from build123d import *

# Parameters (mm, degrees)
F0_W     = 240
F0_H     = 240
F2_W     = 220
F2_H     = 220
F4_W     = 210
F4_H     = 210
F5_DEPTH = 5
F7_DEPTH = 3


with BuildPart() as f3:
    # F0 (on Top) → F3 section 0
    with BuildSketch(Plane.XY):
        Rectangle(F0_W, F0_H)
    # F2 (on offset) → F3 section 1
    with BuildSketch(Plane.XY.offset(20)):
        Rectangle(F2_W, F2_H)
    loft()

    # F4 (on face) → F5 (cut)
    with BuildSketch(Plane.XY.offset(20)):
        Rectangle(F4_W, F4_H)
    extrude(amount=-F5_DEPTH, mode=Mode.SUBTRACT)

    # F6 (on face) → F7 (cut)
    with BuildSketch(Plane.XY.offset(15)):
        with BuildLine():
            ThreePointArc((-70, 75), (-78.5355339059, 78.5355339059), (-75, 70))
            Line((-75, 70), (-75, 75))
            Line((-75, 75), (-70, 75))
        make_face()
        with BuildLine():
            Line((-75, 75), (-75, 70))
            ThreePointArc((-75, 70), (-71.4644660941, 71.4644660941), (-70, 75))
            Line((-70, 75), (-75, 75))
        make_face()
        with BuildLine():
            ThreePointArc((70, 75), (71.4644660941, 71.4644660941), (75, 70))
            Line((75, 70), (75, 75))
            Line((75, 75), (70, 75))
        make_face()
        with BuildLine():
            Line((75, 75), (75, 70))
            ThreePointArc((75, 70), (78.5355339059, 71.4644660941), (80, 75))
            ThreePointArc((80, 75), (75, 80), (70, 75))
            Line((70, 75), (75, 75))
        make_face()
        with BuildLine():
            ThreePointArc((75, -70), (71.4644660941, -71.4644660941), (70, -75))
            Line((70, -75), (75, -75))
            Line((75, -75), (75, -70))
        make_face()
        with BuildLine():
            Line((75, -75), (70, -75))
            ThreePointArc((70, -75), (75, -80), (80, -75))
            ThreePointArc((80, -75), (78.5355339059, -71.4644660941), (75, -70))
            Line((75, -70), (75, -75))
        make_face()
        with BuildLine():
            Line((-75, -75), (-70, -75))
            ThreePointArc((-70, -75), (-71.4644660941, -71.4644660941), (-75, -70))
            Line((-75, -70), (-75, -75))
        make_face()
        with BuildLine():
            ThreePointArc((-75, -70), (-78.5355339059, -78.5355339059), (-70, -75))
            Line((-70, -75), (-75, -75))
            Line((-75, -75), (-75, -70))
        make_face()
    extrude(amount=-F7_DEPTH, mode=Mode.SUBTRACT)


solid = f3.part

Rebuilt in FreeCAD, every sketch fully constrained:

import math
import FreeCAD as App
import Part
import Sketcher

doc = App.newDocument("Part")
body = doc.addObject("PartDesign::Body", "Body")

sketch1 = body.newObject("Sketcher::SketchObject", "Sketch")
sketch1.AttachmentSupport = (doc.getObject("XY_Plane"), [""])
sketch1.MapMode = "FlatFace"
sketch1.addGeometry(Part.LineSegment(App.Vector(-120, 120, 0), App.Vector(-120, -120, 0)), False)
sketch1.addGeometry(Part.LineSegment(App.Vector(-120, -120, 0), App.Vector(120, -120, 0)), False)
sketch1.addGeometry(Part.LineSegment(App.Vector(120, -120, 0), App.Vector(120, 120, 0)), False)
sketch1.addGeometry(Part.LineSegment(App.Vector(120, 120, 0), App.Vector(-120, 120, 0)), False)
sketch1.addConstraint(Sketcher.Constraint("Coincident", 0, 2, 1, 1))
sketch1.addConstraint(Sketcher.Constraint("Coincident", 1, 2, 2, 1))
sketch1.addConstraint(Sketcher.Constraint("Coincident", 2, 2, 3, 1))
sketch1.addConstraint(Sketcher.Constraint("Coincident", 3, 2, 0, 1))
sketch1.addConstraint(Sketcher.Constraint("Vertical", 0))
sketch1.addConstraint(Sketcher.Constraint("Horizontal", 1))
sketch1.addConstraint(Sketcher.Constraint("Vertical", 2))
sketch1.addConstraint(Sketcher.Constraint("Horizontal", 3))
sketch1.addConstraint(Sketcher.Constraint("Symmetric", 0, 2, 2, 2, -1, 1))
sketch1.addConstraint(Sketcher.Constraint("Equal", 3, 0))
sketch1.addConstraint(Sketcher.Constraint("DistanceX", 1, 1, 1, 2, 240.0))

sketch2 = body.newObject("Sketcher::SketchObject", "Sketch001")
sketch2.AttachmentSupport = (doc.getObject("XY_Plane"), [""])
sketch2.MapMode = "FlatFace"
sketch2.AttachmentOffset = App.Placement(App.Vector(0, 0, 20), App.Rotation())
sketch2.addGeometry(Part.LineSegment(App.Vector(-110, 110, 0), App.Vector(-110, -110, 0)), False)
sketch2.addGeometry(Part.LineSegment(App.Vector(-110, -110, 0), App.Vector(110, -110, 0)), False)
sketch2.addGeometry(Part.LineSegment(App.Vector(110, -110, 0), App.Vector(110, 110, 0)), False)
sketch2.addGeometry(Part.LineSegment(App.Vector(110, 110, 0), App.Vector(-110, 110, 0)), False)
sketch2.addConstraint(Sketcher.Constraint("Coincident", 0, 2, 1, 1))
sketch2.addConstraint(Sketcher.Constraint("Coincident", 1, 2, 2, 1))
sketch2.addConstraint(Sketcher.Constraint("Coincident", 2, 2, 3, 1))
sketch2.addConstraint(Sketcher.Constraint("Coincident", 3, 2, 0, 1))
sketch2.addConstraint(Sketcher.Constraint("Vertical", 0))
sketch2.addConstraint(Sketcher.Constraint("Horizontal", 1))
sketch2.addConstraint(Sketcher.Constraint("Vertical", 2))
sketch2.addConstraint(Sketcher.Constraint("Horizontal", 3))
sketch2.addConstraint(Sketcher.Constraint("Symmetric", 0, 2, 2, 2, -1, 1))
sketch2.addConstraint(Sketcher.Constraint("Equal", 3, 0))
sketch2.addConstraint(Sketcher.Constraint("DistanceX", 1, 1, 1, 2, 220.0))

additiveloft = body.newObject("PartDesign::AdditiveLoft", "AdditiveLoft")
additiveloft.Profile = sketch1
additiveloft.Sections = [sketch2]

sketch3 = body.newObject("Sketcher::SketchObject", "Sketch002")
sketch3.AttachmentSupport = (doc.getObject("XY_Plane"), [""])
sketch3.MapMode = "FlatFace"
sketch3.AttachmentOffset = App.Placement(App.Vector(0, 0, 20), App.Rotation())
sketch3.addGeometry(Part.LineSegment(App.Vector(-105, 105, 0), App.Vector(-105, -105, 0)), False)
sketch3.addGeometry(Part.LineSegment(App.Vector(-105, -105, 0), App.Vector(105, -105, 0)), False)
sketch3.addGeometry(Part.LineSegment(App.Vector(105, -105, 0), App.Vector(105, 105, 0)), False)
sketch3.addGeometry(Part.LineSegment(App.Vector(105, 105, 0), App.Vector(-105, 105, 0)), False)
sketch3.addConstraint(Sketcher.Constraint("Coincident", 0, 2, 1, 1))
sketch3.addConstraint(Sketcher.Constraint("Coincident", 1, 2, 2, 1))
sketch3.addConstraint(Sketcher.Constraint("Coincident", 2, 2, 3, 1))
sketch3.addConstraint(Sketcher.Constraint("Coincident", 3, 2, 0, 1))
sketch3.addConstraint(Sketcher.Constraint("Vertical", 0))
sketch3.addConstraint(Sketcher.Constraint("Horizontal", 1))
sketch3.addConstraint(Sketcher.Constraint("Vertical", 2))
sketch3.addConstraint(Sketcher.Constraint("Horizontal", 3))
sketch3.addConstraint(Sketcher.Constraint("Symmetric", 0, 2, 2, 2, -1, 1))
sketch3.addConstraint(Sketcher.Constraint("Equal", 3, 0))
sketch3.addConstraint(Sketcher.Constraint("DistanceX", 1, 1, 1, 2, 210.0))
pocket1 = body.newObject("PartDesign::Pocket", "Pocket")
pocket1.Profile = sketch3
pocket1.Length = 5

sketch4 = body.newObject("Sketcher::SketchObject", "Sketch003")
sketch4.AttachmentSupport = (doc.getObject("XY_Plane"), [""])
sketch4.MapMode = "FlatFace"
sketch4.AttachmentOffset = App.Placement(App.Vector(0, 0, 15), App.Rotation())
sketch4.addGeometry(Part.ArcOfCircle(Part.Circle(App.Vector(-75, 75, 0), App.Vector(0, 0, 1), 5), math.radians(0), math.radians(270)), False)
sketch4.addGeometry(Part.ArcOfCircle(Part.Circle(App.Vector(-75, 75, 0), App.Vector(0, 0, 1), 5), math.radians(-90), math.radians(0)), False)
sketch4.addGeometry(Part.ArcOfCircle(Part.Circle(App.Vector(75, 75, 0), App.Vector(0, 0, 1), 5), math.radians(180), math.radians(270)), False)
sketch4.addGeometry(Part.ArcOfCircle(Part.Circle(App.Vector(75, 75, 0), App.Vector(0, 0, 1), 5), math.radians(-90), math.radians(0)), False)
sketch4.addGeometry(Part.ArcOfCircle(Part.Circle(App.Vector(75, 75, 0), App.Vector(0, 0, 1), 5), math.radians(0), math.radians(180)), False)
sketch4.addGeometry(Part.ArcOfCircle(Part.Circle(App.Vector(75, -75, 0), App.Vector(0, 0, 1), 5), math.radians(90), math.radians(180)), False)
sketch4.addGeometry(Part.ArcOfCircle(Part.Circle(App.Vector(75, -75, 0), App.Vector(0, 0, 1), 5), math.radians(180), math.radians(360)), False)
sketch4.addGeometry(Part.ArcOfCircle(Part.Circle(App.Vector(75, -75, 0), App.Vector(0, 0, 1), 5), math.radians(0), math.radians(90)), False)
sketch4.addGeometry(Part.ArcOfCircle(Part.Circle(App.Vector(-75, -75, 0), App.Vector(0, 0, 1), 5), math.radians(0), math.radians(90)), False)
sketch4.addGeometry(Part.ArcOfCircle(Part.Circle(App.Vector(-75, -75, 0), App.Vector(0, 0, 1), 5), math.radians(90), math.radians(360)), False)
sketch4.addConstraint(Sketcher.Constraint("Tangent", 0, 1, 1, 2))
sketch4.addConstraint(Sketcher.Constraint("Coincident", 1, 1, 0, 2))
sketch4.addConstraint(Sketcher.Constraint("Tangent", 2, 2, 3, 1))
sketch4.addConstraint(Sketcher.Constraint("Tangent", 3, 2, 4, 1))
sketch4.addConstraint(Sketcher.Constraint("Tangent", 4, 2, 2, 1))
sketch4.addConstraint(Sketcher.Constraint("Tangent", 5, 2, 6, 1))
sketch4.addConstraint(Sketcher.Constraint("Tangent", 6, 2, 7, 1))
sketch4.addConstraint(Sketcher.Constraint("Tangent", 7, 2, 5, 1))
sketch4.addConstraint(Sketcher.Constraint("Tangent", 8, 1, 9, 2))
sketch4.addConstraint(Sketcher.Constraint("Coincident", 9, 1, 8, 2))
sketch4.addConstraint(Sketcher.Constraint("Equal", 1, 2))
sketch4.addConstraint(Sketcher.Constraint("Equal", 4, 5))
sketch4.addConstraint(Sketcher.Constraint("Equal", 7, 8))
sketch4.addConstraint(Sketcher.Constraint("Symmetric", 0, 3, 5, 3, -1, 1))
sketch4.addConstraint(Sketcher.Constraint("Symmetric", 2, 3, 8, 3, -1, 1))
sketch4.addConstraint(Sketcher.Constraint("Symmetric", 0, 3, 2, 3, -2))
sketch4.addConstraint(Sketcher.Constraint("Horizontal", 4, 3, 0, 1))
sketch4.addConstraint(Sketcher.Constraint("Horizontal", 0, 1, 3, 2))
sketch4.addConstraint(Sketcher.Constraint("Horizontal", 3, 2, 4, 2))
sketch4.addConstraint(Sketcher.Constraint("Horizontal", 9, 3, 5, 2))
sketch4.addConstraint(Sketcher.Constraint("Horizontal", 5, 2, 6, 2))
sketch4.addConstraint(Sketcher.Constraint("Horizontal", 6, 2, 8, 1))
sketch4.addConstraint(Sketcher.Constraint("Vertical", 9, 3, 1, 1))
sketch4.addConstraint(Sketcher.Constraint("Vertical", 7, 3, 2, 2))
sketch4.addConstraint(Sketcher.Constraint("Vertical", 2, 2, 7, 2))
sketch4.addConstraint(Sketcher.Constraint("Vertical", 1, 1, 9, 1))
sketch4.addConstraint(Sketcher.Constraint("Radius", 0, 5.0))
sketch4.addConstraint(Sketcher.Constraint("DistanceX", 0, 3, -1, 1, 75.0))
sketch4.addConstraint(Sketcher.Constraint("DistanceY", -1, 1, 0, 3, 75.0))
pocket2 = body.newObject("PartDesign::Pocket", "Pocket001")
pocket2.Profile = sketch4
pocket2.Length = 3

doc.recompute()
